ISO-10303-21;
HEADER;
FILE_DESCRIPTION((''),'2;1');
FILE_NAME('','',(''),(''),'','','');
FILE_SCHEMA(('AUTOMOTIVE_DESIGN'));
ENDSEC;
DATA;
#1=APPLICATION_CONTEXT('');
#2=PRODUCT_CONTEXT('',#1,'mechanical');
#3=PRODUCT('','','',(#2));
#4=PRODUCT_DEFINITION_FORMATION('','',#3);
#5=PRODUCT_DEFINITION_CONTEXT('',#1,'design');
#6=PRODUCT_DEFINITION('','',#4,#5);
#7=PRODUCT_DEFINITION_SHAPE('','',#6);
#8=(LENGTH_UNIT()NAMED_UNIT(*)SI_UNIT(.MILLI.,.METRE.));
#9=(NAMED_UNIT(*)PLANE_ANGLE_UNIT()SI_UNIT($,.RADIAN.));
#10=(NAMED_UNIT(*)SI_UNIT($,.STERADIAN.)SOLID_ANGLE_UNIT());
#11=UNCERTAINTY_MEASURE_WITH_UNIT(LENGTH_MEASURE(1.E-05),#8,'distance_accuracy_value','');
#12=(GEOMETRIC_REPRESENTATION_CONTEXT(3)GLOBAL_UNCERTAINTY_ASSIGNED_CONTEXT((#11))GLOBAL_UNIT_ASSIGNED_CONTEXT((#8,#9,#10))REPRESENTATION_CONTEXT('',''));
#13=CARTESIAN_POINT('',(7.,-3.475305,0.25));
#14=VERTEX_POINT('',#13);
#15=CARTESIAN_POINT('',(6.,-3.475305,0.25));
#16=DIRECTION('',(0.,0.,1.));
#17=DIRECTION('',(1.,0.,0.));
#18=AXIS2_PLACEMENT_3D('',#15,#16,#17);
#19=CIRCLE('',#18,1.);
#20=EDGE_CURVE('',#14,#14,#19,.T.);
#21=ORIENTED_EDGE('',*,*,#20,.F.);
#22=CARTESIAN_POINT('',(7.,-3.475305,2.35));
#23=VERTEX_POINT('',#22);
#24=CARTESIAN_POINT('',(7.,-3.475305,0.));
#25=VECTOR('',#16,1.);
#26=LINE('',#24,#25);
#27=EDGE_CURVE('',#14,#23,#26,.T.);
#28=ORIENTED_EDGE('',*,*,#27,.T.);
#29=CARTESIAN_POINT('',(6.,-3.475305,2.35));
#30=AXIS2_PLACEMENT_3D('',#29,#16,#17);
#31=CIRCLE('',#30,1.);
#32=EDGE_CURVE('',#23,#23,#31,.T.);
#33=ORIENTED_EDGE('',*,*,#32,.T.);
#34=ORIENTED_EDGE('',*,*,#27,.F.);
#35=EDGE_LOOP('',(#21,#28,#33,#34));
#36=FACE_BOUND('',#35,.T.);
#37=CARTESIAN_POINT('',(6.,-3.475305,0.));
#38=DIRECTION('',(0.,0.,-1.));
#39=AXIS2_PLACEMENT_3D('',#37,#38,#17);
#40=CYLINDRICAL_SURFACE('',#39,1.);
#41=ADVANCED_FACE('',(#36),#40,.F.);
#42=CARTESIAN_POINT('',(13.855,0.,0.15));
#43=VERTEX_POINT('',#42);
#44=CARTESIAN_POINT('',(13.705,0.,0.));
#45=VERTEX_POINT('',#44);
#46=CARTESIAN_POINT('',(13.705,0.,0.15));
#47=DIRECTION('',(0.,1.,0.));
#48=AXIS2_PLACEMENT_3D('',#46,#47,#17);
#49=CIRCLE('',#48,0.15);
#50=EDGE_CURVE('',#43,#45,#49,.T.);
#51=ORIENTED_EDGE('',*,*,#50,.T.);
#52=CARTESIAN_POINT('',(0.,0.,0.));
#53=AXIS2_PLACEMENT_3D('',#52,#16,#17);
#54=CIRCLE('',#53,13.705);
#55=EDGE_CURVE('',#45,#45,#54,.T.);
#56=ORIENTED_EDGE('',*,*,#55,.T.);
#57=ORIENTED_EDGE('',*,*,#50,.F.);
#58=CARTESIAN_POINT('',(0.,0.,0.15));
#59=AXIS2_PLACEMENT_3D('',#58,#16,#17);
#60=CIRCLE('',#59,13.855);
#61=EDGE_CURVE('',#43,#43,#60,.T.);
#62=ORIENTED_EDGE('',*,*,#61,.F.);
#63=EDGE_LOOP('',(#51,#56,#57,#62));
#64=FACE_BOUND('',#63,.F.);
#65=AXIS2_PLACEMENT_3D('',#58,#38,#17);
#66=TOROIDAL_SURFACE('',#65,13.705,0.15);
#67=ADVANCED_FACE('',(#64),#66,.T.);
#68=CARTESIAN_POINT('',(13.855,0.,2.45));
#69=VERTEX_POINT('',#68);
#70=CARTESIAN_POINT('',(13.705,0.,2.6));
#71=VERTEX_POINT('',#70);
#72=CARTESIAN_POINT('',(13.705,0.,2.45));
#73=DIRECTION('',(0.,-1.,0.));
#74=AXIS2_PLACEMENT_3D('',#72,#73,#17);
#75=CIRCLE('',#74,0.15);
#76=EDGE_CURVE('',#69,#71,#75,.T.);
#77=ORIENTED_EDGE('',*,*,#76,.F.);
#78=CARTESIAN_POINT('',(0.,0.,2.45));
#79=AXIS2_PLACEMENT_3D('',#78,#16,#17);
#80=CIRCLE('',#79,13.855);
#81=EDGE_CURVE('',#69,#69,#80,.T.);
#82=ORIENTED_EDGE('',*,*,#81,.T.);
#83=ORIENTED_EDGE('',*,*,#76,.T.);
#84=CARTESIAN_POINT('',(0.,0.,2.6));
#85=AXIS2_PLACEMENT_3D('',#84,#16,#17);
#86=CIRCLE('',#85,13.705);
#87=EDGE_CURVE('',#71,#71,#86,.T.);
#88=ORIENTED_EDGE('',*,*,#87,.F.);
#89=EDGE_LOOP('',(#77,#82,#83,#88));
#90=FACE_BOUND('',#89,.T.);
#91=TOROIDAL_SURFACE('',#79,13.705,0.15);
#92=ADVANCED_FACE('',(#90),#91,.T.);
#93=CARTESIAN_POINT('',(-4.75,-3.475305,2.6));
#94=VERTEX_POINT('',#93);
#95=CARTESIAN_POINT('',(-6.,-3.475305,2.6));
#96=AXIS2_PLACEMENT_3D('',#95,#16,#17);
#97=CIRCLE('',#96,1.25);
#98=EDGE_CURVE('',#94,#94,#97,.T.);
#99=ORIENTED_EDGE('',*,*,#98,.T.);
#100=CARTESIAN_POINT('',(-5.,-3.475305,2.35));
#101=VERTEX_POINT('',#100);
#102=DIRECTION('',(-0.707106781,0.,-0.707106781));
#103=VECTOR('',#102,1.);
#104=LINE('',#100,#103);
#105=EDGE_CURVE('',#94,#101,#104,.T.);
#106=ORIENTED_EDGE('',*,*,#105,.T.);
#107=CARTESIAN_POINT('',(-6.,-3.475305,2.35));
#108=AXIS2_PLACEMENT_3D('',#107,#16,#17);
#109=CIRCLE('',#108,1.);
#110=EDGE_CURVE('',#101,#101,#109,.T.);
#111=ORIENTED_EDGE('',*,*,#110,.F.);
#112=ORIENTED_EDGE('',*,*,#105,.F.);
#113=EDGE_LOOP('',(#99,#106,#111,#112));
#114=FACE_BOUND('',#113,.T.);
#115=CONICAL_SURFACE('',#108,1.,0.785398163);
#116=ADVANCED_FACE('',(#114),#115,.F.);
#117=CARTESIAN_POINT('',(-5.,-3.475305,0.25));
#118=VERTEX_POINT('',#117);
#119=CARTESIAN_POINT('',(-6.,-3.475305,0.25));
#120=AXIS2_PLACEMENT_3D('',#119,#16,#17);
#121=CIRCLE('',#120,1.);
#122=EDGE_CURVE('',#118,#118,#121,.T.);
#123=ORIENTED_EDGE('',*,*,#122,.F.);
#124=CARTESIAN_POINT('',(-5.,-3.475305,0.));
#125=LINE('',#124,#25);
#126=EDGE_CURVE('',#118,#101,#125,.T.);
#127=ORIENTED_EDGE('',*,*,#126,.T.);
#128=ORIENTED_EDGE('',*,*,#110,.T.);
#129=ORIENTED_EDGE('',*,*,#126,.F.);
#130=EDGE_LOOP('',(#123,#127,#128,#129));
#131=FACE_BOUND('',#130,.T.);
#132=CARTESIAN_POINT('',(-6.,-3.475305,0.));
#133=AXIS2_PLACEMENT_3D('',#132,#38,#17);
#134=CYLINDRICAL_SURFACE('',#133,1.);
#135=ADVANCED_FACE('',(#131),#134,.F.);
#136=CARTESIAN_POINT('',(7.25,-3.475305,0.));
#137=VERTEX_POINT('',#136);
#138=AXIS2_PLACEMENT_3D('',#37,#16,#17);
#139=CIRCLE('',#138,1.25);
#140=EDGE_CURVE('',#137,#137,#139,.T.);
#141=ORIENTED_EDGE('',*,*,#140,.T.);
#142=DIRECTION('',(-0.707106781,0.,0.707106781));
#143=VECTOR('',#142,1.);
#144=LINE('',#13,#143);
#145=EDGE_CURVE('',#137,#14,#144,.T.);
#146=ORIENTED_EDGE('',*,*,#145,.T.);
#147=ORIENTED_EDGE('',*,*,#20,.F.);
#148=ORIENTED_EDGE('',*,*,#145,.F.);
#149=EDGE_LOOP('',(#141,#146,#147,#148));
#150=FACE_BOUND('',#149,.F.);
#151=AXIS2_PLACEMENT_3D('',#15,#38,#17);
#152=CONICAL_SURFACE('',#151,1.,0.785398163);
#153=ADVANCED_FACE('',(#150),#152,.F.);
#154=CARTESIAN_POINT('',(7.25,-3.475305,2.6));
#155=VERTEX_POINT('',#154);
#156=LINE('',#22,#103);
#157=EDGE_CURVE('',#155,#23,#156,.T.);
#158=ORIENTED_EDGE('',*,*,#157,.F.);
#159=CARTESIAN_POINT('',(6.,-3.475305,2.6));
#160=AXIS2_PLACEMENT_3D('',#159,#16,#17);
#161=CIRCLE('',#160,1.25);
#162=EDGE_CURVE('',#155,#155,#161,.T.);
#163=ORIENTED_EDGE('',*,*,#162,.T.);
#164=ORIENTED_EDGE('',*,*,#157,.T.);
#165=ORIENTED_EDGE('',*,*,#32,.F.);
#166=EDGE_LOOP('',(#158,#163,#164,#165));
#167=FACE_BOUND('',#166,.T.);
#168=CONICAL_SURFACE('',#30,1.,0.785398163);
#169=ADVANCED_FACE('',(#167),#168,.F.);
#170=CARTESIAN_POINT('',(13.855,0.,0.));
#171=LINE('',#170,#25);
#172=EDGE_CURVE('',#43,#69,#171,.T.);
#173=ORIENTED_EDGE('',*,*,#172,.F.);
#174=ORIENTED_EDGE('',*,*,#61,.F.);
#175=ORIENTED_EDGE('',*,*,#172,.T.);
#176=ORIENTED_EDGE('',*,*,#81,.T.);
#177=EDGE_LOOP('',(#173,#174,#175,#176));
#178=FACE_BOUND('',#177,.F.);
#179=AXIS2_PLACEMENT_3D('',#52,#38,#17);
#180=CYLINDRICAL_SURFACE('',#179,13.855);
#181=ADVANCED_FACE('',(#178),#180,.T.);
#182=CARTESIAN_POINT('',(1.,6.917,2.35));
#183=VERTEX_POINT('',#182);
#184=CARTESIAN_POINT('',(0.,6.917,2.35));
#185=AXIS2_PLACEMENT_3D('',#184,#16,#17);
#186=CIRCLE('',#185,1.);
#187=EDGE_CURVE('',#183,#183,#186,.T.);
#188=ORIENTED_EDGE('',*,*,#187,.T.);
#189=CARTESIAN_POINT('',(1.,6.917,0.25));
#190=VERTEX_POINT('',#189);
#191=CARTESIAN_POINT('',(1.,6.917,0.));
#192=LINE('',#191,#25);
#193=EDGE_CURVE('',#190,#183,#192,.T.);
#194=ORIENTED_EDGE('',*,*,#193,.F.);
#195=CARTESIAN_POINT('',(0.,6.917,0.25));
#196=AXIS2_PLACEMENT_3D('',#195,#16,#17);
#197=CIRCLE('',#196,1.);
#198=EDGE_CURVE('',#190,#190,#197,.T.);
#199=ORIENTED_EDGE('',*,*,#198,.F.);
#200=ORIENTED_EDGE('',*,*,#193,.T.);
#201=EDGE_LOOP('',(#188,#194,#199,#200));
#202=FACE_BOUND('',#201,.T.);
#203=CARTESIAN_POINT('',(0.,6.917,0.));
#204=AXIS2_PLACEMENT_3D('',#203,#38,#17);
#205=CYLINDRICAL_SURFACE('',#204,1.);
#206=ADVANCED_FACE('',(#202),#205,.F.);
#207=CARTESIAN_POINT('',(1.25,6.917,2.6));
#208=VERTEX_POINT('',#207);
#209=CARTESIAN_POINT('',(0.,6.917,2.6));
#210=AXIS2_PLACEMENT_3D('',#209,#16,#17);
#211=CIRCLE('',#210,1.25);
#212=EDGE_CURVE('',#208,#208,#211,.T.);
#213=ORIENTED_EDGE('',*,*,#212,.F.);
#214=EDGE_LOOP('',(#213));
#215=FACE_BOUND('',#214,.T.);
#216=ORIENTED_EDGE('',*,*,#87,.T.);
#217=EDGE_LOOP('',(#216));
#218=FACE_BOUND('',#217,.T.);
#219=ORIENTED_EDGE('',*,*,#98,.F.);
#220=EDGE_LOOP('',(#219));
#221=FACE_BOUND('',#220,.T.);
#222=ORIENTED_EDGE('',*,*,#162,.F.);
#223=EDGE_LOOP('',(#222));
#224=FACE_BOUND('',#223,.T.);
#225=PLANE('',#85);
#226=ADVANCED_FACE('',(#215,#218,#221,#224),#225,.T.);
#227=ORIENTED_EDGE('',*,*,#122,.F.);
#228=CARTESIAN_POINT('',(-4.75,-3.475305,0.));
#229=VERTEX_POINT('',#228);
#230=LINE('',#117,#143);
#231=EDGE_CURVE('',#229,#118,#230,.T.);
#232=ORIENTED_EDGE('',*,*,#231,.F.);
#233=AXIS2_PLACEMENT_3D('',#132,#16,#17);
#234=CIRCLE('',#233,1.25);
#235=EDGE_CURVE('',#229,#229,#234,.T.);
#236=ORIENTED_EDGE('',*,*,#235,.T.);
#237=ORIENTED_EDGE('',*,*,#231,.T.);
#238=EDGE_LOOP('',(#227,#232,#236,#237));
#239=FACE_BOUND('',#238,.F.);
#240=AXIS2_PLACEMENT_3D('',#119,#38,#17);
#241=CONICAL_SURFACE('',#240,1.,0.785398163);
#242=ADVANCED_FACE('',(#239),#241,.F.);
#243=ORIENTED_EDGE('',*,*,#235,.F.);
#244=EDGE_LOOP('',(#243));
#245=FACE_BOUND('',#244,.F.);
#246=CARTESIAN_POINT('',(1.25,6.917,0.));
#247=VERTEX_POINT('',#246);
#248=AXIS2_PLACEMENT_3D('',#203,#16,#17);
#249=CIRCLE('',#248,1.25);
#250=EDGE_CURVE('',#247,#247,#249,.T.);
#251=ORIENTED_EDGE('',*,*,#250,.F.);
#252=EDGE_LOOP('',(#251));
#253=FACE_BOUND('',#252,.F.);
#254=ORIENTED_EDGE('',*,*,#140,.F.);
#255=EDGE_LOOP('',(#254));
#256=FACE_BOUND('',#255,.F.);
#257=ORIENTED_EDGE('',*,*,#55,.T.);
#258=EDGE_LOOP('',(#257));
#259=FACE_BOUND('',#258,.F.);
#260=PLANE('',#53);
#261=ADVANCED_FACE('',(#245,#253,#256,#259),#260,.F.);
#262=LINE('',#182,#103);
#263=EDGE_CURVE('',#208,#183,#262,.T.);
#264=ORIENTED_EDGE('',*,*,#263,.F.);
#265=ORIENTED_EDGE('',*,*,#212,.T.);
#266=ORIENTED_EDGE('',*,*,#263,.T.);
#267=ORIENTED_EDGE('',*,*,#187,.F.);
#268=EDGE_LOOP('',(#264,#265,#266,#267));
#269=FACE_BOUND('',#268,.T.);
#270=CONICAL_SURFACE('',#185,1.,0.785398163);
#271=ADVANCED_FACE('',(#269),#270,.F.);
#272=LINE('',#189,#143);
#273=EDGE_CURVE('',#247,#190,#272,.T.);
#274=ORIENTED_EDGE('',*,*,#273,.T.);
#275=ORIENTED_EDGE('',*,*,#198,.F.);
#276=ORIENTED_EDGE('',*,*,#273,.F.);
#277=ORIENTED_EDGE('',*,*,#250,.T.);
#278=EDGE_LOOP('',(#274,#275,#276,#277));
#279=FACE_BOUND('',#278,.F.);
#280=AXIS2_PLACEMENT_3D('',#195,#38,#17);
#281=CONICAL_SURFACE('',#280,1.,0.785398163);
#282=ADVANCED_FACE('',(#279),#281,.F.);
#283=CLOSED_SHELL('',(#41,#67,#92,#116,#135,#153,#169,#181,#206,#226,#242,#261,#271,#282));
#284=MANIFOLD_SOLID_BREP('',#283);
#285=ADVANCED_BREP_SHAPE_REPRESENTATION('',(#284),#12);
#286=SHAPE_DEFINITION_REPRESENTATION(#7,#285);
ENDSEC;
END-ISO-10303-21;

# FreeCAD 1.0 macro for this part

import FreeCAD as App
import Part
import Sketcher
from FreeCAD import Vector


def edges_at(feature, points):
    """Names of the edges that pass closest to the given points."""
    edges = feature.Shape.Edges
    near = lambda p: min(range(len(edges)), key=lambda i: edges[i].distToShape(Part.Vertex(*p))[0])
    return sorted({f"Edge{near(p) + 1}" for p in points})

doc = App.newDocument("Part")
body = doc.addObject("PartDesign::Body", "Body")

# Sketch on XY plane
sketch1 = doc.addObject("Sketcher::SketchObject", "Sketch")
body.addObject(sketch1)
sketch1.AttachmentSupport = (doc.XY_Plane, [""])
sketch1.MapMode = "FlatFace"
sketch1.addGeometry([
    Part.Circle(Vector(0, 0, 0), Vector(0, 0, 1), 13.855),
    Part.Circle(Vector(-6, -3.475305, 0), Vector(0, 0, 1), 1),
    Part.Circle(Vector(6, -3.475305, 0), Vector(0, 0, 1), 1),
    Part.Circle(Vector(0, 6.917, 0), Vector(0, 0, 1), 1),
], False)
sketch1.addConstraint([
    Sketcher.Constraint("Coincident", 0, 3, -1, 1),
    Sketcher.Constraint("Equal", 1, 2),
    Sketcher.Constraint("Equal", 2, 3),
    Sketcher.Constraint("Symmetric", 1, 3, 2, 3, -2),
    Sketcher.Constraint("PointOnObject", 3, 3, -2),
    Sketcher.Constraint("Diameter", 1, 2.0),
    Sketcher.Constraint("Diameter", 0, 27.71),
    Sketcher.Constraint("DistanceX", 1, 3, -1, 1, 6.0),
    Sketcher.Constraint("DistanceY", -1, 1, 3, 3, 6.917),
    Sketcher.Constraint("DistanceY", 1, 3, -1, 1, 3.475305),
])
pad1 = doc.addObject("PartDesign::Pad", "Pad")
body.addObject(pad1)
pad1.Profile = sketch1
pad1.Length = 2.6
doc.recompute()

fillet = doc.addObject("PartDesign::Fillet", "Fillet")
body.addObject(fillet)
fillet.Base = (pad1, edges_at(pad1, [(-13.855, 0, 2.6), (-13.855, 0, 0)]))
fillet.Radius = 0.15
doc.recompute()

chamfer = doc.addObject("PartDesign::Chamfer", "Chamfer")
body.addObject(chamfer)
chamfer.Base = (fillet, edges_at(fillet, [
    (-1, 6.917, 2.6),
    (5, -3.475, 2.6),
    (5, -3.475, 0),
    (-1, 6.917, 0),
    (-7, -3.475, 2.6),
    (-7, -3.475, 0),
]))
chamfer.Size = 0.25

doc.recompute()
